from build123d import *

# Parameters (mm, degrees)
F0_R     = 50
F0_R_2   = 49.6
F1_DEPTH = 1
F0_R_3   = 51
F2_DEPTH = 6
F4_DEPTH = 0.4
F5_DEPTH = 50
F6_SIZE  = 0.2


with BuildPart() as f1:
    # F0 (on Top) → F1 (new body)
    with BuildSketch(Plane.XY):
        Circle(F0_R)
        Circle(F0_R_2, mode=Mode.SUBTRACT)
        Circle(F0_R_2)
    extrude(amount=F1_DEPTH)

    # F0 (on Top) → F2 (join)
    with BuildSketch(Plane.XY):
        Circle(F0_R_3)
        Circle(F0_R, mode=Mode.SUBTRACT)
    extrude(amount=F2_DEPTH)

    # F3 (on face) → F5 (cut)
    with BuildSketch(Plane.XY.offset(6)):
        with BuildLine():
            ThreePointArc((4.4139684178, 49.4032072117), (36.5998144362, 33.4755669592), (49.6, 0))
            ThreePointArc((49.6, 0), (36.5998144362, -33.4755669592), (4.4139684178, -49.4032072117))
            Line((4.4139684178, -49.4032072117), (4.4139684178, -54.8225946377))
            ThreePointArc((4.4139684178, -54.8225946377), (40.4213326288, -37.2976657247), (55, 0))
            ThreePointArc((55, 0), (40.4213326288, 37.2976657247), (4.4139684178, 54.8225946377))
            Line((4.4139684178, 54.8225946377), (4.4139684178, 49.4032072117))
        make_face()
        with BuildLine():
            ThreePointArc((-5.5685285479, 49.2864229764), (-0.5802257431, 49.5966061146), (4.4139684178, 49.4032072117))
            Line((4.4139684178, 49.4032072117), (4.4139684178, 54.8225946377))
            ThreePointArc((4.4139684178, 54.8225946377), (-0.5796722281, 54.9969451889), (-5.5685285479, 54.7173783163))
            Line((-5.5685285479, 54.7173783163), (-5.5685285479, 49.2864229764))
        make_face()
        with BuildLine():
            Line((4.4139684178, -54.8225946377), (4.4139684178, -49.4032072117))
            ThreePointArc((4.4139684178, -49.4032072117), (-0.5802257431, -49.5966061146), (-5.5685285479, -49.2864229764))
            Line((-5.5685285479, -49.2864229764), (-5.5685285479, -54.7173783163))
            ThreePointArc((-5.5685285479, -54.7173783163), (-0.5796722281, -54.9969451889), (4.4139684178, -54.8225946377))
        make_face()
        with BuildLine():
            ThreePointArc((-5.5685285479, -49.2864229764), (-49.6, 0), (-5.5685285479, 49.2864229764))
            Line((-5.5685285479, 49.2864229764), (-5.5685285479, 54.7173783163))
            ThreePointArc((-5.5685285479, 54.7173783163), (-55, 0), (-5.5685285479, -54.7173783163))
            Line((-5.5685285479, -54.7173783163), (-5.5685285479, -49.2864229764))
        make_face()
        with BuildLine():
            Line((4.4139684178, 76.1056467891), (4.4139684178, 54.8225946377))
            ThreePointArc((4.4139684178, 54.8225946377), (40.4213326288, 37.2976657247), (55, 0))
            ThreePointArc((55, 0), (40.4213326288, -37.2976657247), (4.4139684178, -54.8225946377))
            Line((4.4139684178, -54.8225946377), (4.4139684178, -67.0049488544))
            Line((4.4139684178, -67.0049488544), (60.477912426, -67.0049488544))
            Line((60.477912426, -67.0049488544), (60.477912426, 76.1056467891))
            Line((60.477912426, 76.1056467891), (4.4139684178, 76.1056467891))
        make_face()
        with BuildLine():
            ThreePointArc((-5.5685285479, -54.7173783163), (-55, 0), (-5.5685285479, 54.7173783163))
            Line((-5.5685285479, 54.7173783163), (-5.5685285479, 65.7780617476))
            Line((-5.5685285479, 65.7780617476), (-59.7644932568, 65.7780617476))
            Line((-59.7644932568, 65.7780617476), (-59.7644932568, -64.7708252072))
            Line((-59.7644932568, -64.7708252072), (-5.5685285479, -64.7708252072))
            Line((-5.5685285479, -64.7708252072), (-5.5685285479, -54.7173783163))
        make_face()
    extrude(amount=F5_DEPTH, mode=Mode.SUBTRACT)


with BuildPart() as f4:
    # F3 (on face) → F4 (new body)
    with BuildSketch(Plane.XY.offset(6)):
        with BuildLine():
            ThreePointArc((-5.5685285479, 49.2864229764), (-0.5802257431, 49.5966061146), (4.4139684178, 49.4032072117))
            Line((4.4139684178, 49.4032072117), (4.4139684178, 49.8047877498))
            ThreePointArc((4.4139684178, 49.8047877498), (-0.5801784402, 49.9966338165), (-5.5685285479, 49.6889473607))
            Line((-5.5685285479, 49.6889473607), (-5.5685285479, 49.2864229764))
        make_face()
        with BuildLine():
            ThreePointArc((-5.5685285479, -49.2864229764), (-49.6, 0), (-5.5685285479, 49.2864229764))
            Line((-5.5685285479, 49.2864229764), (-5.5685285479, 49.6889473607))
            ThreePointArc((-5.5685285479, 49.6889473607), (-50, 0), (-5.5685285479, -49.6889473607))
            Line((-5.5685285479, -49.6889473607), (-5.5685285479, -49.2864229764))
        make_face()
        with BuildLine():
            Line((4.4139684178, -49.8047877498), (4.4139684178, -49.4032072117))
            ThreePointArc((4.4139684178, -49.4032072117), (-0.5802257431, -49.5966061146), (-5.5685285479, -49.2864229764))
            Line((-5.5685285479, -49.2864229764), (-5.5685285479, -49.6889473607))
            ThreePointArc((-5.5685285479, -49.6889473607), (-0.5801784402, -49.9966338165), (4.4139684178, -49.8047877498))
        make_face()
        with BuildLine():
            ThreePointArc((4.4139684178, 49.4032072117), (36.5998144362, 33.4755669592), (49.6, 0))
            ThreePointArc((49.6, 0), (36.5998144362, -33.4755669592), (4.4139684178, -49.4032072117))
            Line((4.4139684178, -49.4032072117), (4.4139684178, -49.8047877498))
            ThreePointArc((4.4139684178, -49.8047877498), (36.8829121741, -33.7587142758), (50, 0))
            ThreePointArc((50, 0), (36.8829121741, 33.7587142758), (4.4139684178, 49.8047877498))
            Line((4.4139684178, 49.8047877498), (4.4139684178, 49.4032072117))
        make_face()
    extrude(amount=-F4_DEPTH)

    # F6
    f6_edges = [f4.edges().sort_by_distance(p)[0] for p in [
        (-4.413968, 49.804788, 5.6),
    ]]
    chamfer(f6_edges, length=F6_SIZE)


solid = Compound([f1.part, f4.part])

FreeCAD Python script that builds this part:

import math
import FreeCAD as App
import Part
import Sketcher

V = App.Vector


def edges_at(feature, points):
    """Names of the edges that pass closest to the given points."""
    edges = feature.Shape.Edges
    near = lambda p: min(range(len(edges)), key=lambda i: edges[i].distToShape(Part.Vertex(*p))[0])
    return sorted({f"Edge{near(p) + 1}" for p in points})

doc = App.newDocument("Part")
body = doc.addObject("PartDesign::Body", "Body")

# Sketch on XY plane
sketch1 = body.newObject("Sketcher::SketchObject", "Sketch")
sketch1.AttachmentSupport = (doc.getObject("XY_Plane"), [""])
sketch1.MapMode = "FlatFace"
sketch1.addGeometry(Part.Circle(V(0, 0, 0), V(0, 0, 1), 50), False)
sketch1.addConstraint(Sketcher.Constraint("Coincident", 0, 3, -1, 1))
sketch1.addConstraint(Sketcher.Constraint("Diameter", 0, 100.0))
pad1 = body.newObject("PartDesign::Pad", "Pad")
pad1.Profile = sketch1
pad1.Length = 1

# Sketch on XY plane
sketch2 = body.newObject("Sketcher::SketchObject", "Sketch001")
sketch2.AttachmentSupport = (doc.getObject("XY_Plane"), [""])
sketch2.MapMode = "FlatFace"
sketch2.addGeometry(Part.Circle(V(0, 0, 0), V(0, 0, 1), 51), False)
sketch2.addGeometry(Part.Circle(V(0, 0, 0), V(0, 0, 1), 50), False)
sketch2.addConstraint(Sketcher.Constraint("Coincident", 0, 3, -1, 1))
sketch2.addConstraint(Sketcher.Constraint("Coincident", 1, 3, -1, 1))
sketch2.addConstraint(Sketcher.Constraint("Diameter", 0, 102.0))
sketch2.addConstraint(Sketcher.Constraint("Diameter", 1, 100.0))
pad2 = body.newObject("PartDesign::Pad", "Pad001")
pad2.Profile = sketch2
pad2.Length = 6

# Sketch on XY plane
sketch3 = body.newObject("Sketcher::SketchObject", "Sketch002")
sketch3.AttachmentSupport = (doc.getObject("XY_Plane"), [""])
sketch3.MapMode = "FlatFace"
sketch3.AttachmentOffset = App.Placement(V(0, 0, 6), App.Rotation())
sketch3.addGeometry(Part.ArcOfCircle(Part.Circle(V(0, 0, 0), V(0, 0, 1), 55), math.radians(-95.81), math.radians(-85.4)), False)
sketch3.addGeometry(Part.LineSegment(V(4, -55, 0), V(4, -67, 0)), False)
sketch3.addGeometry(Part.LineSegment(V(4, -67, 0), V(60, -67, 0)), False)
sketch3.addGeometry(Part.LineSegment(V(60, -67, 0), V(60, 76, 0)), False)
sketch3.addGeometry(Part.LineSegment(V(60, 76, 0), V(4, 76, 0)), False)
sketch3.addGeometry(Part.LineSegment(V(4, 76, 0), V(4, 55, 0)), False)
sketch3.addGeometry(Part.ArcOfCircle(Part.Circle(V(0, 0, 0), V(0, 0, 1), 55), math.radians(85.4), math.radians(95.81)), False)
sketch3.addGeometry(Part.LineSegment(V(-6, 55, 0), V(-6, 66, 0)), False)
sketch3.addGeometry(Part.LineSegment(V(-6, 66, 0), V(-60, 66, 0)), False)
sketch3.addGeometry(Part.LineSegment(V(-60, 66, 0), V(-60, -65, 0)), False)
sketch3.addGeometry(Part.LineSegment(V(-60, -65, 0), V(-6, -65, 0)), False)
sketch3.addGeometry(Part.LineSegment(V(-6, -65, 0), V(-6, -55, 0)), False)
sketch3.addGeometry(Part.ArcOfCircle(Part.Circle(V(0, 0, 0), V(0, 0, 1), 50), math.radians(0), math.radians(85)), False)
sketch3.addGeometry(Part.ArcOfCircle(Part.Circle(V(0, 0, 0), V(0, 0, 1), 50), math.radians(-85), math.radians(0)), False)
sketch3.addGeometry(Part.ArcOfCircle(Part.Circle(V(0, 0, 0), V(0, 0, 1), 50), math.radians(-96.45), math.radians(-84.89)), False)
sketch3.addGeometry(Part.ArcOfCircle(Part.Circle(V(0, 0, 0), V(0, 0, 1), 50), math.radians(96), math.radians(264)), False)
sketch3.addGeometry(Part.ArcOfCircle(Part.Circle(V(0, 0, 0), V(0, 0, 1), 50), math.radians(84.89), math.radians(96.45)), False)
sketch3.addConstraint(Sketcher.Constraint("Coincident", 0, 2, 1, 1))
sketch3.addConstraint(Sketcher.Constraint("Coincident", 1, 2, 2, 1))
sketch3.addConstraint(Sketcher.Constraint("Coincident", 2, 2, 3, 1))
sketch3.addConstraint(Sketcher.Constraint("Coincident", 3, 2, 4, 1))
sketch3.addConstraint(Sketcher.Constraint("Coincident", 4, 2, 5, 1))
sketch3.addConstraint(Sketcher.Constraint("Coincident", 5, 2, 6, 1))
sketch3.addConstraint(Sketcher.Constraint("Coincident", 6, 2, 7, 1))
sketch3.addConstraint(Sketcher.Constraint("Coincident", 7, 2, 8, 1))
sketch3.addConstraint(Sketcher.Constraint("Coincident", 8, 2, 9, 1))
sketch3.addConstraint(Sketcher.Constraint("Coincident", 9, 2, 10, 1))
sketch3.addConstraint(Sketcher.Constraint("Coincident", 10, 2, 11, 1))
sketch3.addConstraint(Sketcher.Constraint("Coincident", 11, 2, 0, 1))
sketch3.addConstraint(Sketcher.Constraint("Tangent", 12, 1, 13, 2))
sketch3.addConstraint(Sketcher.Constraint("Tangent", 13, 1, 14, 2))
sketch3.addConstraint(Sketcher.Constraint("Tangent", 14, 1, 15, 2))
sketch3.addConstraint(Sketcher.Constraint("Tangent", 15, 1, 16, 2))
sketch3.addConstraint(Sketcher.Constraint("Tangent", 16, 1, 12, 2))
sketch3.addConstraint(Sketcher.Constraint("Vertical", 1))
sketch3.addConstraint(Sketcher.Constraint("Horizontal", 2))
sketch3.addConstraint(Sketcher.Constraint("Vertical", 3))
sketch3.addConstraint(Sketcher.Constraint("Horizontal", 4))
sketch3.addConstraint(Sketcher.Constraint("Vertical", 5))
sketch3.addConstraint(Sketcher.Constraint("Vertical", 7))
sketch3.addConstraint(Sketcher.Constraint("Horizontal", 8))
sketch3.addConstraint(Sketcher.Constraint("Vertical", 9))
sketch3.addConstraint(Sketcher.Constraint("Horizontal", 10))
sketch3.addConstraint(Sketcher.Constraint("Vertical", 11))
sketch3.addConstraint(Sketcher.Constraint("Coincident", 0, 3, -1, 1))
sketch3.addConstraint(Sketcher.Constraint("Coincident", 6, 3, -1, 1))
sketch3.addConstraint(Sketcher.Constraint("Coincident", 12, 3, -1, 1))
sketch3.addConstraint(Sketcher.Constraint("Coincident", 14, 3, -1, 1))
sketch3.addConstraint(Sketcher.Constraint("Equal", 0, 6))
sketch3.addConstraint(Sketcher.Constraint("PointOnObject", 12, 1, -1))
sketch3.addConstraint(Sketcher.Constraint("Vertical", 1, 2, 4, 2))
sketch3.addConstraint(Sketcher.Constraint("Vertical", 7, 2, 10, 2))
sketch3.addConstraint(Sketcher.Constraint("Vertical", 5, 2, 13, 1))
sketch3.addConstraint(Sketcher.Constraint("Vertical", 11, 2, 14, 1))
sketch3.addConstraint(Sketcher.Constraint("Vertical", 14, 1, 15, 1))
sketch3.addConstraint(Sketcher.Constraint("Vertical", 13, 1, 16, 1))
sketch3.addConstraint(Sketcher.Constraint("Radius", 0, 55.0))
sketch3.addConstraint(Sketcher.Constraint("Radius", 12, 49.6))
sketch3.addConstraint(Sketcher.Constraint("DistanceX", 2, 1, 2, 2, 56.063944))
sketch3.addConstraint(Sketcher.Constraint("DistanceX", 8, 2, 8, 1, 54.195965))
sketch3.addConstraint(Sketcher.Constraint("DistanceY", 1, 2, 1, 1, 12.182354))
sketch3.addConstraint(Sketcher.Constraint("DistanceY", 3, 1, 3, 2, 143.110596))
sketch3.addConstraint(Sketcher.Constraint("DistanceY", 5, 2, 5, 1, 21.283052))
sketch3.addConstraint(Sketcher.Constraint("DistanceY", 7, 1, 7, 2, 11.060683))
sketch3.addConstraint(Sketcher.Constraint("DistanceY", 9, 2, 9, 1, 130.548887))
sketch3.addConstraint(Sketcher.Constraint("DistanceY", 11, 1, 11, 2, 10.053447))
pocket1 = body.newObject("PartDesign::Pocket", "Pocket")
pocket1.Profile = sketch3
pocket1.Length = 50
pocket1.Reversed = True
body2 = doc.addObject("PartDesign::Body", "Body001")

# Sketch on XY plane
sketch4 = body2.newObject("Sketcher::SketchObject", "Sketch003")
sketch4.AttachmentSupport = (doc.getObject("XY_Plane001"), [""])
sketch4.MapMode = "FlatFace"
sketch4.AttachmentOffset = App.Placement(V(0, 0, 6), App.Rotation())
sketch4.addGeometry(Part.ArcOfCircle(Part.Circle(V(0, 0, 0), V(0, 0, 1), 50), math.radians(84.94), math.radians(96.39)), False)
sketch4.addGeometry(Part.ArcOfCircle(Part.Circle(V(0, 0, 0), V(0, 0, 1), 50), math.radians(96), math.radians(264)), False)
sketch4.addGeometry(Part.ArcOfCircle(Part.Circle(V(0, 0, 0), V(0, 0, 1), 50), math.radians(-96.39), math.radians(-84.94)), False)
sketch4.addGeometry(Part.ArcOfCircle(Part.Circle(V(0, 0, 0), V(0, 0, 1), 50), math.radians(-85), math.radians(0)), False)
sketch4.addGeometry(Part.ArcOfCircle(Part.Circle(V(0, 0, 0), V(0, 0, 1), 50), math.radians(0), math.radians(85)), False)
sketch4.addGeometry(Part.ArcOfCircle(Part.Circle(V(0, 0, 0), V(0, 0, 1), 50), math.radians(84.89), math.radians(96.45)), False)
sketch4.addGeometry(Part.ArcOfCircle(Part.Circle(V(0, 0, 0), V(0, 0, 1), 50), math.radians(0), math.radians(85)), False)
sketch4.addGeometry(Part.ArcOfCircle(Part.Circle(V(0, 0, 0), V(0, 0, 1), 50), math.radians(-85), math.radians(0)), False)
sketch4.addGeometry(Part.ArcOfCircle(Part.Circle(V(0, 0, 0), V(0, 0, 1), 50), math.radians(-96.45), math.radians(-84.89)), False)
sketch4.addGeometry(Part.ArcOfCircle(Part.Circle(V(0, 0, 0), V(0, 0, 1), 50), math.radians(96), math.radians(264)), False)
sketch4.addConstraint(Sketcher.Constraint("Tangent", 0, 2, 1, 1))
sketch4.addConstraint(Sketcher.Constraint("Tangent", 1, 2, 2, 1))
sketch4.addConstraint(Sketcher.Constraint("Tangent", 2, 2, 3, 1))
sketch4.addConstraint(Sketcher.Constraint("Tangent", 3, 2, 4, 1))
sketch4.addConstraint(Sketcher.Constraint("Tangent", 4, 2, 0, 1))
sketch4.addConstraint(Sketcher.Constraint("Tangent", 5, 1, 6, 2))
sketch4.addConstraint(Sketcher.Constraint("Tangent", 6, 1, 7, 2))
sketch4.addConstraint(Sketcher.Constraint("Tangent", 7, 1, 8, 2))
sketch4.addConstraint(Sketcher.Constraint("Tangent", 8, 1, 9, 2))
sketch4.addConstraint(Sketcher.Constraint("Tangent", 9, 1, 5, 2))
sketch4.addConstraint(Sketcher.Constraint("Coincident", 0, 3, -1, 1))
sketch4.addConstraint(Sketcher.Constraint("Coincident", 2, 3, -1, 1))
sketch4.addConstraint(Sketcher.Constraint("Coincident", 5, 3, -1, 1))
sketch4.addConstraint(Sketcher.Constraint("Coincident", 7, 3, -1, 1))
sketch4.addConstraint(Sketcher.Constraint("PointOnObject", 3, 2, -1))
sketch4.addConstraint(Sketcher.Constraint("PointOnObject", 6, 1, -1))
sketch4.addConstraint(Sketcher.Constraint("Vertical", 0, 2, 1, 2))
sketch4.addConstraint(Sketcher.Constraint("Vertical", 2, 2, 4, 2))
sketch4.addConstraint(Sketcher.Constraint("Vertical", 4, 2, 5, 1))
sketch4.addConstraint(Sketcher.Constraint("Vertical", 5, 1, 7, 1))
sketch4.addConstraint(Sketcher.Constraint("Vertical", 1, 2, 8, 1))
sketch4.addConstraint(Sketcher.Constraint("Vertical", 8, 1, 9, 1))
sketch4.addConstraint(Sketcher.Constraint("Radius", 0, 50.0))
sketch4.addConstraint(Sketcher.Constraint("Radius", 5, 49.6))
sketch4.addConstraint(Sketcher.Constraint("DistanceX", 0, 2, -1, 1, 5.568529))
sketch4.addConstraint(Sketcher.Constraint("DistanceX", -1, 1, 2, 2, 4.413968))
pad3 = body2.newObject("PartDesign::Pad", "Pad002")
pad3.Profile = sketch4
pad3.Length = 0.4
pad3.Reversed = True
doc.recompute()

chamfer = body2.newObject("PartDesign::Chamfer", "Chamfer")
chamfer.Base = (pad3, edges_at(pad3, [(-0.58, 49.997, 5.6)]))
chamfer.Size = 0.2

doc.recompute()
